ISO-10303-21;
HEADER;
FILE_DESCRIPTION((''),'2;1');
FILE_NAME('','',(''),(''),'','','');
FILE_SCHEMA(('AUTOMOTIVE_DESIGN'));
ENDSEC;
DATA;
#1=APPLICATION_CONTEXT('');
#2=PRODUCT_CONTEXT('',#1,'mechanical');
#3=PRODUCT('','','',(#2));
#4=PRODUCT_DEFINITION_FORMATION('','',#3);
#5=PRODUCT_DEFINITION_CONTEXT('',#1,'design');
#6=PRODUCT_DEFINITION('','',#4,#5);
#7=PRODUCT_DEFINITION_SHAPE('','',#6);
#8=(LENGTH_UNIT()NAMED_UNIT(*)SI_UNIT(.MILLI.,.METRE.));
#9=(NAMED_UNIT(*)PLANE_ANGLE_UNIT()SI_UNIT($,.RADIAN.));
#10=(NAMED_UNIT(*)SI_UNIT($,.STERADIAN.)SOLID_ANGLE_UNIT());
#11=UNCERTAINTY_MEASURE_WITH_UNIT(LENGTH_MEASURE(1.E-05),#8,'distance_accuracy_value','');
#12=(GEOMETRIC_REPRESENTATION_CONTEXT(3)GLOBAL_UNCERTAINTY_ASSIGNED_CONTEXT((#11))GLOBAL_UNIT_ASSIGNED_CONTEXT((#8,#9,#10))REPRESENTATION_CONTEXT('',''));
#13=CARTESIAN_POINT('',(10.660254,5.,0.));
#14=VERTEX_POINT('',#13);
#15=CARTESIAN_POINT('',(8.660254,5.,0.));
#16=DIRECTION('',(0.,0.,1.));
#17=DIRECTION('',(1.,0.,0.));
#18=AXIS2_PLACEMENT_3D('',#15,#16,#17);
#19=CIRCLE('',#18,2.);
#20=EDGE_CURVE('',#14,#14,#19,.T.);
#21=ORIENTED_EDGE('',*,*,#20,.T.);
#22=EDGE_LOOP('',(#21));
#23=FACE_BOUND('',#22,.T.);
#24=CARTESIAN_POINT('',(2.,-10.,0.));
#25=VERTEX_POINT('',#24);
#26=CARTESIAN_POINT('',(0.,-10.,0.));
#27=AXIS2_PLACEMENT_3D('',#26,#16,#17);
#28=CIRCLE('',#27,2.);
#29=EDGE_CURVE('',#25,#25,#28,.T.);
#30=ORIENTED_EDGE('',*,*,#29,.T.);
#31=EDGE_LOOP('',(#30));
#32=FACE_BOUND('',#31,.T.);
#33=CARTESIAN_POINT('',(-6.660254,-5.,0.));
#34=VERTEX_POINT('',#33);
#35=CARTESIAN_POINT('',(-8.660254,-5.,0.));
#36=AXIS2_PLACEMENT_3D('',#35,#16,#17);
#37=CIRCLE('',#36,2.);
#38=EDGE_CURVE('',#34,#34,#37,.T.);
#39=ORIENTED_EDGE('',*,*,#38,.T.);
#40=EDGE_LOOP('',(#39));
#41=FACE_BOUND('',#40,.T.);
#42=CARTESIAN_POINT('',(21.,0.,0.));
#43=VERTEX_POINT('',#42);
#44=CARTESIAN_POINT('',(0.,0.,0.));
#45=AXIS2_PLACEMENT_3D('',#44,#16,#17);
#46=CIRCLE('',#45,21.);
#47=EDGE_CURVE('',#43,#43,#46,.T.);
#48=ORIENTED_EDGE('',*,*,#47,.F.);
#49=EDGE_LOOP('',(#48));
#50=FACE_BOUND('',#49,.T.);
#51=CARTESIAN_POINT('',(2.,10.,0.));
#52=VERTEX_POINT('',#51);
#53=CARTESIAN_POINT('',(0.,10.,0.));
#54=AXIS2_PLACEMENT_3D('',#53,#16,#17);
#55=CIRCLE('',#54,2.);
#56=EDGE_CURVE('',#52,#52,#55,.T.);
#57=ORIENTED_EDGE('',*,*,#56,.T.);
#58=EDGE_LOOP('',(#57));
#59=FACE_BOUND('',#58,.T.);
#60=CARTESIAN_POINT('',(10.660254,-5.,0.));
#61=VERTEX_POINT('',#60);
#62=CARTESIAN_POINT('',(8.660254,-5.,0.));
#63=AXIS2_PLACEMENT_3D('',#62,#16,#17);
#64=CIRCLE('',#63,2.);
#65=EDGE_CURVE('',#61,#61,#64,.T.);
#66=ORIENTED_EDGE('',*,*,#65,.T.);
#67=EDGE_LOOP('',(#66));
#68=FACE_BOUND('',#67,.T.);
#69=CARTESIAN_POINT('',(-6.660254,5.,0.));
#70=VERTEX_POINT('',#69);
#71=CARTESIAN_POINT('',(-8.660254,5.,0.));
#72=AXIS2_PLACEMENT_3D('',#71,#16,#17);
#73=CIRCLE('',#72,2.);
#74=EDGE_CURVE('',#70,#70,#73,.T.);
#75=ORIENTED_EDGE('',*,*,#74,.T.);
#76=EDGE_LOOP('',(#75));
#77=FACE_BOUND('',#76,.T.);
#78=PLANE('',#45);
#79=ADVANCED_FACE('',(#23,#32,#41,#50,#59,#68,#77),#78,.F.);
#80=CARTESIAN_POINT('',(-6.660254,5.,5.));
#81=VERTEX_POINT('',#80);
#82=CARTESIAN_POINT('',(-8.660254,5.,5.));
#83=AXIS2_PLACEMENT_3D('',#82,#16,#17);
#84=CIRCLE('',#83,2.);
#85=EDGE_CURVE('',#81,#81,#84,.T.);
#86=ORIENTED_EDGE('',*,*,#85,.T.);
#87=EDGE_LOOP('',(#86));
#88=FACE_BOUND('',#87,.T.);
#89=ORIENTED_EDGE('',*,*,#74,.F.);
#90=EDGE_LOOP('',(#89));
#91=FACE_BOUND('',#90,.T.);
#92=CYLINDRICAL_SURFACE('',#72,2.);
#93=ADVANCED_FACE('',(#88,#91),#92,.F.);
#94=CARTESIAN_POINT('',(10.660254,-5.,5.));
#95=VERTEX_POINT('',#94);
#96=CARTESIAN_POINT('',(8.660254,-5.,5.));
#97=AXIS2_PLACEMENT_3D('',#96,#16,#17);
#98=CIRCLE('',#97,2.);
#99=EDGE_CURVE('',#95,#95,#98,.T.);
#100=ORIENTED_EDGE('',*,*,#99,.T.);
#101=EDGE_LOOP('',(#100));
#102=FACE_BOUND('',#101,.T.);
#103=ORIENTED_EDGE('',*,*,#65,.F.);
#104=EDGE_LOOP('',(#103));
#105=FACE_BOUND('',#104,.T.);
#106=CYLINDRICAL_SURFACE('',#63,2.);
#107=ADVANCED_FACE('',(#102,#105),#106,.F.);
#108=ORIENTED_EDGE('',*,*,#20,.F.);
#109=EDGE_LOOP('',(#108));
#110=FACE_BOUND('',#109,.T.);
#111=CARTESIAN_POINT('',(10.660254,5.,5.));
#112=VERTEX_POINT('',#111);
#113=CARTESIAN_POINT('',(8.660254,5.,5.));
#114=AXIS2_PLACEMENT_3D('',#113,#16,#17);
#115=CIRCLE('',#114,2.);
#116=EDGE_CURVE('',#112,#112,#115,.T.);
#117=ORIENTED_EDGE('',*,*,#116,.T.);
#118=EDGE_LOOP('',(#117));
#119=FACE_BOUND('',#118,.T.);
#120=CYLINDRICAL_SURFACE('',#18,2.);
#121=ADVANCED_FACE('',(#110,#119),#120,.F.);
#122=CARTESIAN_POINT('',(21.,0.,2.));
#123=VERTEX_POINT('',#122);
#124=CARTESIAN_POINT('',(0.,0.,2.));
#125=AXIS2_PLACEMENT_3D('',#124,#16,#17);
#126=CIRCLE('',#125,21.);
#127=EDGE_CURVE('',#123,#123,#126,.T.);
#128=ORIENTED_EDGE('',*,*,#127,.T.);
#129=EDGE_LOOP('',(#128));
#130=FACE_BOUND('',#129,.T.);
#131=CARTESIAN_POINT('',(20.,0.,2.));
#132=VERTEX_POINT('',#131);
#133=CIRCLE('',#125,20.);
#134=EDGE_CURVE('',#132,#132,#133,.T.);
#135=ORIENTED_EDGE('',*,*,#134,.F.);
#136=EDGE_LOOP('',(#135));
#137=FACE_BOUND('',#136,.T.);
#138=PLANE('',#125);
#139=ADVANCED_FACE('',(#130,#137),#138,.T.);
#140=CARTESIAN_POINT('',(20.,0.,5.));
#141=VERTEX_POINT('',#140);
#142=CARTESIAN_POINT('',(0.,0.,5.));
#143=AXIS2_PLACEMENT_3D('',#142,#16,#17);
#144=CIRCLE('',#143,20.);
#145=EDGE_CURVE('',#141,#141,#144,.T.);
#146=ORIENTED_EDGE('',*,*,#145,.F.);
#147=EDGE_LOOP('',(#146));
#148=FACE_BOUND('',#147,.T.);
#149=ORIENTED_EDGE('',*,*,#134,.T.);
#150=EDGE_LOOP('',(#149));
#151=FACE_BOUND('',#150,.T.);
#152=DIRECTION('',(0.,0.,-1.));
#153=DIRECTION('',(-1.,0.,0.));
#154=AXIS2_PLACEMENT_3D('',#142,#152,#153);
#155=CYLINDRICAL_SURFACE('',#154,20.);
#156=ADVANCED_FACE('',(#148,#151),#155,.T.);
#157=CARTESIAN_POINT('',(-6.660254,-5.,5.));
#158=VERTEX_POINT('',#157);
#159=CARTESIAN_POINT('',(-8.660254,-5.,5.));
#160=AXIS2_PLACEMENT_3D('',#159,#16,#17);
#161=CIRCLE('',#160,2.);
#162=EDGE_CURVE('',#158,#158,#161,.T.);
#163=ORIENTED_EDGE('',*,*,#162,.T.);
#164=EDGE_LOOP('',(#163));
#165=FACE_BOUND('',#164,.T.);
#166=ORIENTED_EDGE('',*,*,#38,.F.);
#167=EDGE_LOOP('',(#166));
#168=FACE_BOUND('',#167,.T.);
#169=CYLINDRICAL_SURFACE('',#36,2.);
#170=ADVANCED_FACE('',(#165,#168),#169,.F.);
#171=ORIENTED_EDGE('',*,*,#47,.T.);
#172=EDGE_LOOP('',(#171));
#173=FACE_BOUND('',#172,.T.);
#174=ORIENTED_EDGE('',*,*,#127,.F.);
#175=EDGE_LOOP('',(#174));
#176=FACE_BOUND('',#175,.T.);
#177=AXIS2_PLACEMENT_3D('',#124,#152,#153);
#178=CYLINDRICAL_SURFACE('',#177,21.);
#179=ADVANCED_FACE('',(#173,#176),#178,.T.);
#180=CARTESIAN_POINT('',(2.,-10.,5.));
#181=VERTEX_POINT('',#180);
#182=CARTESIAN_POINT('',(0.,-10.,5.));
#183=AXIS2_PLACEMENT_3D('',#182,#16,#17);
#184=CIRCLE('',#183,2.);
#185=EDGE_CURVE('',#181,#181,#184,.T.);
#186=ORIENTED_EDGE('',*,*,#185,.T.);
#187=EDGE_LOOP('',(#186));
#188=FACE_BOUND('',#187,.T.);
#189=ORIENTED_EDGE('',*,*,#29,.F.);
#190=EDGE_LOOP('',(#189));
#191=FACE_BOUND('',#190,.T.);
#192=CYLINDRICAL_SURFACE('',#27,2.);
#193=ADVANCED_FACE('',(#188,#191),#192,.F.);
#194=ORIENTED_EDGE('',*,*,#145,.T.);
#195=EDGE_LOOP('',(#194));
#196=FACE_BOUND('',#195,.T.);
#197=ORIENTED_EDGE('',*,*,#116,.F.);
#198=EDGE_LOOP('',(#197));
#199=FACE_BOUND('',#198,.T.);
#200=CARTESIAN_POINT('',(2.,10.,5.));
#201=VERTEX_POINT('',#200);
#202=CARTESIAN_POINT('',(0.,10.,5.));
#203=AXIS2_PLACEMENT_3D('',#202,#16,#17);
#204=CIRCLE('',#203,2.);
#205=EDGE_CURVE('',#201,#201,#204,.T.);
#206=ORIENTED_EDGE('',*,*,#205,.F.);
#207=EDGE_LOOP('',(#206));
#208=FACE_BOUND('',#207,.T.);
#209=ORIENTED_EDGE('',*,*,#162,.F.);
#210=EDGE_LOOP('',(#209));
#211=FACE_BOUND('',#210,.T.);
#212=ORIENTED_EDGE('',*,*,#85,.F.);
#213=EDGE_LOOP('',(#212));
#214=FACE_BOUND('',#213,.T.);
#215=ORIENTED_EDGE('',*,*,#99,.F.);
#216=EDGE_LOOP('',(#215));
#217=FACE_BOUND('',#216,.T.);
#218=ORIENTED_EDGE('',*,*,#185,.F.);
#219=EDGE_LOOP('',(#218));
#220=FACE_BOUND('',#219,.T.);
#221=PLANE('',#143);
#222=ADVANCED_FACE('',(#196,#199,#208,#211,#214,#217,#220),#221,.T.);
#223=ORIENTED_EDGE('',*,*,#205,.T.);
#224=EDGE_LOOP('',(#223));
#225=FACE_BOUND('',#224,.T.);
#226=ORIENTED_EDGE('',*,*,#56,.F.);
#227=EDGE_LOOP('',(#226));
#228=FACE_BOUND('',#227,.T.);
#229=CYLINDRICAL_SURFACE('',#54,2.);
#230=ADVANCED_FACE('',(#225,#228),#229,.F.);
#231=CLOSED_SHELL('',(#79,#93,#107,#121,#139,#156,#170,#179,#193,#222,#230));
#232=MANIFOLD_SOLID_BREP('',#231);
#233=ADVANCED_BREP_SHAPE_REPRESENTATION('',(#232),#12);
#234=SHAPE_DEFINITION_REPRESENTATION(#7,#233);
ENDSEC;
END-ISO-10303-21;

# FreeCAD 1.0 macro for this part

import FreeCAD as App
import Part
import Sketcher

V = App.Vector

doc = App.newDocument("Part")
body = doc.addObject("PartDesign::Body", "Body")

sketch1 = doc.addObject("Sketcher::SketchObject", "Sketch")
body.addObject(sketch1)
sketch1.AttachmentSupport = (doc.XY_Plane, [""])
sketch1.MapMode = "FlatFace"
sketch1.addGeometry(Part.Circle(V(0, 0, 0), V(0, 0, 1), 21), False)
sketch1.addConstraint(Sketcher.Constraint("Coincident", 0, 3, -1, 1))
sketch1.addConstraint(Sketcher.Constraint("Diameter", 0, 42.0))
pad1 = doc.addObject("PartDesign::Pad", "Pad")
body.addObject(pad1)
pad1.Profile = sketch1
pad1.Length = 2

sketch2 = doc.addObject("Sketcher::SketchObject", "Sketch001")
body.addObject(sketch2)
sketch2.AttachmentSupport = (doc.XY_Plane, [""])
sketch2.MapMode = "FlatFace"
sketch2.AttachmentOffset = App.Placement(V(0, 0, 2), App.Rotation())
sketch2.addGeometry(Part.Circle(V(0, 0, 0), V(0, 0, 1), 20), False)
sketch2.addConstraint(Sketcher.Constraint("Coincident", 0, 3, -1, 1))
sketch2.addConstraint(Sketcher.Constraint("Diameter", 0, 40.0))
pad2 = doc.addObject("PartDesign::Pad", "Pad001")
body.addObject(pad2)
pad2.Profile = sketch2
pad2.Length = 3

sketch3 = doc.addObject("Sketcher::SketchObject", "Sketch002")
body.addObject(sketch3)
sketch3.AttachmentSupport = (doc.XY_Plane, [""])
sketch3.MapMode = "FlatFace"
sketch3.AttachmentOffset = App.Placement(V(0, 0, 5), App.Rotation())
sketch3.addGeometry(Part.Circle(V(0, 10, 0), V(0, 0, 1), 2), False)
sketch3.addGeometry(Part.Circle(V(8.7, 5, 0), V(0, 0, 1), 2), False)
sketch3.addGeometry(Part.Circle(V(8.7, -5, 0), V(0, 0, 1), 2), False)
sketch3.addGeometry(Part.Circle(V(0, -10, 0), V(0, 0, 1), 2), False)
sketch3.addGeometry(Part.Circle(V(-8.7, -5, 0), V(0, 0, 1), 2), False)
sketch3.addGeometry(Part.Circle(V(-8.7, 5, 0), V(0, 0, 1), 2), False)
sketch3.addConstraint(Sketcher.Constraint("Equal", 0, 1))
sketch3.addConstraint(Sketcher.Constraint("Equal", 1, 2))
sketch3.addConstraint(Sketcher.Constraint("Equal", 2, 3))
sketch3.addConstraint(Sketcher.Constraint("Equal", 3, 4))
sketch3.addConstraint(Sketcher.Constraint("Equal", 4, 5))
sketch3.addConstraint(Sketcher.Constraint("Symmetric", 0, 3, 3, 3, -1, 1))
sketch3.addConstraint(Sketcher.Constraint("Symmetric", 1, 3, 4, 3, -1, 1))
sketch3.addConstraint(Sketcher.Constraint("Symmetric", 2, 3, 5, 3, -1, 1))
sketch3.addConstraint(Sketcher.Constraint("Symmetric", 2, 3, 4, 3, -2))
sketch3.addConstraint(Sketcher.Constraint("PointOnObject", 0, 3, -2))
sketch3.addConstraint(Sketcher.Constraint("Diameter", 0, 4.0))
sketch3.addConstraint(Sketcher.Constraint("DistanceY", -1, 1, 0, 3, 10.0))
sketch3.addConstraint(Sketcher.Constraint("DistanceY", -1, 1, 1, 3, 5.0))
sketch3.addConstraint(Sketcher.Constraint("DistanceX", 4, 3, 2, 3, 17.320508))
pocket1 = doc.addObject("PartDesign::Pocket", "Pocket")
body.addObject(pocket1)
pocket1.Profile = sketch3
pocket1.Type = "ThroughAll"

doc.recompute()
